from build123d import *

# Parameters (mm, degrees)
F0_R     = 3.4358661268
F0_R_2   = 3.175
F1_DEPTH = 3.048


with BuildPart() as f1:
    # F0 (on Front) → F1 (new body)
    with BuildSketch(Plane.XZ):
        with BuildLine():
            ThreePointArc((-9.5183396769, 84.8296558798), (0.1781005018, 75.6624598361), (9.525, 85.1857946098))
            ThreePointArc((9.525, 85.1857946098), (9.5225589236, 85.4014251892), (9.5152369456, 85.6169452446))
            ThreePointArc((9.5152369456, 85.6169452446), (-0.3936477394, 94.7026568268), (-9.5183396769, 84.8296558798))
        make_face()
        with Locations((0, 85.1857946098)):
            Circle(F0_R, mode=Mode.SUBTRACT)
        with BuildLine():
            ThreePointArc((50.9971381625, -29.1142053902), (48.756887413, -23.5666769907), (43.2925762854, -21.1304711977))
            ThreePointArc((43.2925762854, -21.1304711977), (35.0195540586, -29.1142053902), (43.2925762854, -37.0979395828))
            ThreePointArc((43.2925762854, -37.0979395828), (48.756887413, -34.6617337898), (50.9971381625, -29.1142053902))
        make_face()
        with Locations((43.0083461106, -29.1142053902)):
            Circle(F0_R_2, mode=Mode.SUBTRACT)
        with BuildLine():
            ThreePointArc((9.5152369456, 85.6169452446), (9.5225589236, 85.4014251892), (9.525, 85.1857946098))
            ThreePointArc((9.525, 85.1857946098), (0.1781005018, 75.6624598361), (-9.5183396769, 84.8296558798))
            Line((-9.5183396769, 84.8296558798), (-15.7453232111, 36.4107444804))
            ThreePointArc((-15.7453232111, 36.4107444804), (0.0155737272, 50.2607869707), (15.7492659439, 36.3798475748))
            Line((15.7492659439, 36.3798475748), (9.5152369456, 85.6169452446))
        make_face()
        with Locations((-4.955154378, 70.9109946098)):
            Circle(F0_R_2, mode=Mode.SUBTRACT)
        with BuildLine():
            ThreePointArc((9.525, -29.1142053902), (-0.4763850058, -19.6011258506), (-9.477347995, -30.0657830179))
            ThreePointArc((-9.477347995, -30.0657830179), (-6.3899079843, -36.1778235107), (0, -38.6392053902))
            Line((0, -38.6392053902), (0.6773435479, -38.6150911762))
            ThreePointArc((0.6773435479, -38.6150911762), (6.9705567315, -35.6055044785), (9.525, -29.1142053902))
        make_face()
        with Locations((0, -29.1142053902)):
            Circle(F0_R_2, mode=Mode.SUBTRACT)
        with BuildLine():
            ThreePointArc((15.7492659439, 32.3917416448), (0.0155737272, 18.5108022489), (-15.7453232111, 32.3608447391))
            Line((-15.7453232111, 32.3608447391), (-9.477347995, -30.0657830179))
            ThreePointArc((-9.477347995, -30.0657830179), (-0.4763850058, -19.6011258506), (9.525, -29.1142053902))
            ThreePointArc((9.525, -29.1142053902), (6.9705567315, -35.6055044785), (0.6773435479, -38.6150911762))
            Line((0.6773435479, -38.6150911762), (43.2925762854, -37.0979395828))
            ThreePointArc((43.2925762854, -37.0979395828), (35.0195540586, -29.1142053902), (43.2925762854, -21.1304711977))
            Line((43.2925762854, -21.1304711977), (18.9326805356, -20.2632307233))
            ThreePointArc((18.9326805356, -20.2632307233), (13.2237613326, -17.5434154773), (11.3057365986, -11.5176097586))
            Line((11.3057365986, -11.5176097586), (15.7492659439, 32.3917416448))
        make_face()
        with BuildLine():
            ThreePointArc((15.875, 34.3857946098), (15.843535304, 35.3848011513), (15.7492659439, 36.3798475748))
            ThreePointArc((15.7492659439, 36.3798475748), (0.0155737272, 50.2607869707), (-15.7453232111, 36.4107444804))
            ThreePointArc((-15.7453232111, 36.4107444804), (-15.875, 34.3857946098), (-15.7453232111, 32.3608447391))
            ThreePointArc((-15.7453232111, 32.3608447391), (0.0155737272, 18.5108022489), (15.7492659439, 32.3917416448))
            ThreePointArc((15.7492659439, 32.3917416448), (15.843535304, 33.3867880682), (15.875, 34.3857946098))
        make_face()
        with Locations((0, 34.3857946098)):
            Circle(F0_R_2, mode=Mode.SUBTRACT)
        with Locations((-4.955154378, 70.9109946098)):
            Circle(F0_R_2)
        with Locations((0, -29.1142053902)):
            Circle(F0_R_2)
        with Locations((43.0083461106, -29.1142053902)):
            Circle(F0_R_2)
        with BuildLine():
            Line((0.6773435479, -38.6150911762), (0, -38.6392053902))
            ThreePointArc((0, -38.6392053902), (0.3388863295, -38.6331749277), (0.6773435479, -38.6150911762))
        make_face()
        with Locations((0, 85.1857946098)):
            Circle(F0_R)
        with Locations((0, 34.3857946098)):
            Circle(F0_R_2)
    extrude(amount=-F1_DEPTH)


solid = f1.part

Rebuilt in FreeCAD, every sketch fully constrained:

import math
import FreeCAD as App
import Part
import Sketcher
Q = App.Units.Quantity

doc = App.newDocument("Part")
body = doc.addObject("PartDesign::Body", "Body")

# Sketch on XZ plane
sketch1 = body.newObject("Sketcher::SketchObject", "Sketch")
sketch1.AttachmentSupport = (doc.getObject("XZ_Plane"), [""])
sketch1.MapMode = "FlatFace"
sketch1.addGeometry(Part.ArcOfCircle(Part.Circle(App.Vector(0, 85.185795, 0), App.Vector(0, 0, 1), 9.525), math.radians(2.594389), math.radians(182.142783)), False)
sketch1.addGeometry(Part.LineSegment(App.Vector(-9.51834, 84.829656, 0), App.Vector(-15.745323, 36.410744, 0)), False)
sketch1.addGeometry(Part.ArcOfCircle(Part.Circle(App.Vector(0, 34.385795, 0), App.Vector(0, 0, 1), 15.875), math.radians(172.67162), math.radians(187.32838)), False)
sketch1.addGeometry(Part.LineSegment(App.Vector(-15.745323, 32.360845, 0), App.Vector(-9.477348, -30.065783, 0)), False)
sketch1.addGeometry(Part.ArcOfCircle(Part.Circle(App.Vector(0, -29.114205, 0), App.Vector(0, 0, 1), 9.525), math.radians(-174.266406), math.radians(-90)), False)
sketch1.addGeometry(Part.ArcOfCircle(Part.Circle(App.Vector(0, -29.114205, 0), App.Vector(0, 0, 1), 9.525), math.radians(-90), math.radians(-85.92213)), False)
sketch1.addGeometry(Part.LineSegment(App.Vector(0.677344, -38.615091, 0), App.Vector(43.292576, -37.09794, 0)), False)
sketch1.addGeometry(Part.ArcOfCircle(Part.Circle(App.Vector(43.008346, -29.114205, 0), App.Vector(0, 0, 1), 7.988792), math.radians(-87.961065), math.radians(0)), False)
sketch1.addGeometry(Part.ArcOfCircle(Part.Circle(App.Vector(43.008346, -29.114205, 0), App.Vector(0, 0, 1), 7.988792), math.radians(0), math.radians(87.961065)), False)
sketch1.addGeometry(Part.LineSegment(App.Vector(43.292576, -21.130471, 0), App.Vector(18.932681, -20.263231, 0)), False)
sketch1.addGeometry(Part.ArcOfCircle(Part.Circle(App.Vector(19.215538, -12.318064, 0), App.Vector(0, 0, 1), 7.9502), math.radians(174.221466), math.radians(267.961065)), False)
sketch1.addGeometry(Part.LineSegment(App.Vector(11.305737, -11.51761, 0), App.Vector(15.749266, 32.391742, 0)), False)
sketch1.addGeometry(Part.ArcOfCircle(Part.Circle(App.Vector(0, 34.385795, 0), App.Vector(0, 0, 1), 15.875), math.radians(-7.215963), math.radians(0)), False)
sketch1.addGeometry(Part.ArcOfCircle(Part.Circle(App.Vector(0, 34.385795, 0), App.Vector(0, 0, 1), 15.875), math.radians(0), math.radians(7.215963)), False)
sketch1.addGeometry(Part.LineSegment(App.Vector(15.749266, 36.379848, 0), App.Vector(9.515237, 85.616945, 0)), False)
sketch1.addConstraint(Sketcher.Constraint("Coincident", 0, 2, 1, 1))
sketch1.addConstraint(Sketcher.Constraint("Tangent", 1, 2, 2, 1))
sketch1.addConstraint(Sketcher.Constraint("Coincident", 2, 2, 3, 1))
sketch1.addConstraint(Sketcher.Constraint("Tangent", 3, 2, 4, 1))
sketch1.addConstraint(Sketcher.Constraint("Tangent", 4, 2, 5, 1))
sketch1.addConstraint(Sketcher.Constraint("Coincident", 5, 2, 6, 1))
sketch1.addConstraint(Sketcher.Constraint("Tangent", 6, 2, 7, 1))
sketch1.addConstraint(Sketcher.Constraint("Tangent", 7, 2, 8, 1))
sketch1.addConstraint(Sketcher.Constraint("Tangent", 8, 2, 9, 1))
sketch1.addConstraint(Sketcher.Constraint("Tangent", 9, 2, 10, 2))
sketch1.addConstraint(Sketcher.Constraint("Tangent", 10, 1, 11, 1))
sketch1.addConstraint(Sketcher.Constraint("Coincident", 11, 2, 12, 1))
sketch1.addConstraint(Sketcher.Constraint("Tangent", 12, 2, 13, 1))
sketch1.addConstraint(Sketcher.Constraint("Tangent", 13, 2, 14, 1))
sketch1.addConstraint(Sketcher.Constraint("Coincident", 14, 2, 0, 1))
sketch1.addConstraint(Sketcher.Constraint("Coincident", 12, 3, 2, 3))
sketch1.addConstraint(Sketcher.Constraint("Equal", 0, 4))
sketch1.addConstraint(Sketcher.Constraint("Equal", 4, 5))
sketch1.addConstraint(Sketcher.Constraint("Equal", 7, 8))
sketch1.addConstraint(Sketcher.Constraint("Equal", 2, 12))
sketch1.addConstraint(Sketcher.Constraint("Equal", 12, 13))
sketch1.addConstraint(Sketcher.Constraint("PointOnObject", 0, 3, -2))
sketch1.addConstraint(Sketcher.Constraint("PointOnObject", 2, 3, -2))
sketch1.addConstraint(Sketcher.Constraint("PointOnObject", 4, 3, -2))
sketch1.addConstraint(Sketcher.Constraint("PointOnObject", 4, 2, -2))
sketch1.addConstraint(Sketcher.Constraint("Horizontal", 5, 3, 7, 3))
sketch1.addConstraint(Sketcher.Constraint("Horizontal", 8, 3, 7, 2))
sketch1.addConstraint(Sketcher.Constraint("Horizontal", 13, 3, 12, 2))
sketch1.addConstraint(Sketcher.Constraint("Vertical", 1, 2, 2, 2))
sketch1.addConstraint(Sketcher.Constraint("Vertical", 6, 2, 8, 2))
sketch1.addConstraint(Sketcher.Constraint("Vertical", 11, 2, 13, 2))
sketch1.addConstraint(Sketcher.Constraint("Radius", 0, Q("0.375 in")))
sketch1.addConstraint(Sketcher.Constraint("Radius", 2, Q("0.625 in")))
sketch1.addConstraint(Sketcher.Constraint("Radius", 10, Q("0.313 in")))
sketch1.addConstraint(Sketcher.Constraint("DistanceY", 2, 3, 0, 3, Q("2 in")))
sketch1.addConstraint(Sketcher.Constraint("DistanceY", 4, 3, 2, 3, Q("2.5 in")))
sketch1.addConstraint(Sketcher.Constraint("Radius", 7, 7.988792))
sketch1.addConstraint(Sketcher.Constraint("DistanceY", 2, 2, 1, 2, 4.0499))
sketch1.addConstraint(Sketcher.Constraint("DistanceX", 10, 3, 7, 2, 31.781601))
sketch1.addConstraint(Sketcher.Constraint("DistanceX", 10, 1, 10, 3, 7.909801))
sketch1.addConstraint(Sketcher.Constraint("Distance", 6, 42.64223))
sketch1.addConstraint(Sketcher.Constraint("Distance", 14, 49.630181))
sketch1.addConstraint(Sketcher.Constraint("DistanceY", 5, 2, -1, 1, 38.615091))
pad1 = body.newObject("PartDesign::Pad", "Pad")
pad1.Profile = sketch1
pad1.Length = Q("0.12 in")
pad1.Reversed = True

doc.recompute()
